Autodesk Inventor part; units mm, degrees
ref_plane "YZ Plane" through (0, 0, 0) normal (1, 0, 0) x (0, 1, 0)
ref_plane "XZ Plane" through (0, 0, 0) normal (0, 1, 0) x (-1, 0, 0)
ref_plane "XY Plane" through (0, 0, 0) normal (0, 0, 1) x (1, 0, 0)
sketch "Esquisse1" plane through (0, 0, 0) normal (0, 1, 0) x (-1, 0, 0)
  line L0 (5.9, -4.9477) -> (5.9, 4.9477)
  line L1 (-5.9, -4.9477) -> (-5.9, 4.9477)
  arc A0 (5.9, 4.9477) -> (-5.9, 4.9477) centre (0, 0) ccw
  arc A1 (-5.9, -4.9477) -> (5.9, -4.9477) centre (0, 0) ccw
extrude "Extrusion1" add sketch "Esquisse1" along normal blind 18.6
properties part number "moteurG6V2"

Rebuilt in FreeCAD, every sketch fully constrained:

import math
import FreeCAD as App
import Part
import Sketcher

V = App.Vector
Q = App.Units.Quantity

doc = App.newDocument("Part")
body = doc.addObject("PartDesign::Body", "Body")

# Sketch on XZ plane
sketch1 = doc.addObject("Sketcher::SketchObject", "Sketch")
body.addObject(sketch1)
sketch1.AttachmentSupport = (doc.XZ_Plane, [""])
sketch1.MapMode = "FlatFace"
sketch1.addGeometry(Part.ArcOfCircle(Part.Circle(V(0, 0, 0), V(0, 0, 1), 7.699983), math.radians(-140.017031), math.radians(-39.982969)), False)
sketch1.addGeometry(Part.LineSegment(V(-5.9, -4.9477, 0), V(-5.9, 4.9477, 0)), False)
sketch1.addGeometry(Part.ArcOfCircle(Part.Circle(V(0, 0, 0), V(0, 0, 1), 7.699983), math.radians(39.982969), math.radians(140.017031)), False)
sketch1.addGeometry(Part.LineSegment(V(5.9, 4.9477, 0), V(5.9, -4.9477, 0)), False)
sketch1.addConstraint(Sketcher.Constraint("Coincident", 0, 1, 1, 1))
sketch1.addConstraint(Sketcher.Constraint("Coincident", 1, 2, 2, 2))
sketch1.addConstraint(Sketcher.Constraint("Coincident", 2, 1, 3, 1))
sketch1.addConstraint(Sketcher.Constraint("Coincident", 3, 2, 0, 2))
sketch1.addConstraint(Sketcher.Constraint("Vertical", 1))
sketch1.addConstraint(Sketcher.Constraint("Vertical", 3))
sketch1.addConstraint(Sketcher.Constraint("Coincident", 0, 3, -1, 1))
sketch1.addConstraint(Sketcher.Constraint("Coincident", 2, 3, -1, 1))
sketch1.addConstraint(Sketcher.Constraint("Equal", 0, 2))
sketch1.addConstraint(Sketcher.Constraint("Horizontal", 1, 2, 2, 1))
sketch1.addConstraint(Sketcher.Constraint("Radius", 0, Q("7.7 mm")))
sketch1.addConstraint(Sketcher.Constraint("DistanceX", 0, 1, -1, 1, Q("5.9 mm")))
pad1 = doc.addObject("PartDesign::Pad", "Pad")
body.addObject(pad1)
pad1.Profile = sketch1
pad1.Length = 18.6
pad1.Reversed = True

doc.recompute()
